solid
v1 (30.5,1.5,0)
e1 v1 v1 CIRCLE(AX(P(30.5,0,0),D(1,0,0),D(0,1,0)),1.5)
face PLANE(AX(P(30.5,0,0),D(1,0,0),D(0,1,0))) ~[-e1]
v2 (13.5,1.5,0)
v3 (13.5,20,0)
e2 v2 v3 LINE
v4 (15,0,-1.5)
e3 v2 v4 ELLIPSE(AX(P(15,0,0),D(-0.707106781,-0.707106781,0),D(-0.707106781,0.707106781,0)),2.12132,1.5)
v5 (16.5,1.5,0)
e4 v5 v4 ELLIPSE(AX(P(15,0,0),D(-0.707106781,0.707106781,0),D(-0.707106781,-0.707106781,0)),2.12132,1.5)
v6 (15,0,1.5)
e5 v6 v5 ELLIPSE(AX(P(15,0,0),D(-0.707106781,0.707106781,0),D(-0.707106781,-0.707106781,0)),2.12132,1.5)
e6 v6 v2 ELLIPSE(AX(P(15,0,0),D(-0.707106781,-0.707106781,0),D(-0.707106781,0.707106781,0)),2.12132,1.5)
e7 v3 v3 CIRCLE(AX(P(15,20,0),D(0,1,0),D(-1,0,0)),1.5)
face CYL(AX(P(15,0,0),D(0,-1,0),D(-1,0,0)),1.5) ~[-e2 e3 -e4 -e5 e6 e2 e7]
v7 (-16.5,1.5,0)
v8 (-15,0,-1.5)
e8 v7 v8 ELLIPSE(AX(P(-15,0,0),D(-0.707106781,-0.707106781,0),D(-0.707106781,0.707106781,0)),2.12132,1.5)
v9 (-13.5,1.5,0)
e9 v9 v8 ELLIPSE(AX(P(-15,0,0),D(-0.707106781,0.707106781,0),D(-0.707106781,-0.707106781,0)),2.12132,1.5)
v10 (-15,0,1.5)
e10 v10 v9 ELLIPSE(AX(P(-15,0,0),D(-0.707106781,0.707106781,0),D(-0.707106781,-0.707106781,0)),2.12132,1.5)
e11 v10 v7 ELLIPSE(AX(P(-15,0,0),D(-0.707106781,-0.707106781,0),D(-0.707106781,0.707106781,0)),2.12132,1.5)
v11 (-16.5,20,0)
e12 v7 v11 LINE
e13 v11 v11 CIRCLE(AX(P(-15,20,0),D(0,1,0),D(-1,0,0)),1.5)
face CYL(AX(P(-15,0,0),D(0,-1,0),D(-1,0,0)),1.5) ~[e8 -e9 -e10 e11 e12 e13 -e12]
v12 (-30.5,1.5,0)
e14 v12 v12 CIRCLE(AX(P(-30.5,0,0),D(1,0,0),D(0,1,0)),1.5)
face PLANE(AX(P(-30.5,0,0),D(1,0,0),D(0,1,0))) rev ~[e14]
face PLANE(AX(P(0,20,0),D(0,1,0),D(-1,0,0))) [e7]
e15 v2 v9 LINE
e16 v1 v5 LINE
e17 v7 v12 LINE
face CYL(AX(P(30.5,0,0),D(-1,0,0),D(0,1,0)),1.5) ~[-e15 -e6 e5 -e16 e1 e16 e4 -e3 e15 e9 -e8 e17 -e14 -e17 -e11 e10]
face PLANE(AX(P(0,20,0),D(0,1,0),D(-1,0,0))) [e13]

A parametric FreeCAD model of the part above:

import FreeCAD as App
import Part
import Sketcher
Q = App.Units.Quantity


def add_polygon(sketch, points):
    """Adds a closed chain of lines whose ends are joined by coincident constraints."""
    first, n = sketch.GeometryCount, len(points)
    for a, b in zip(points, points[1:] + points[:1]):
        sketch.addGeometry(Part.LineSegment(App.Vector(*a, 0), App.Vector(*b, 0)), False)
    for i in range(n):
        sketch.addConstraint(Sketcher.Constraint("Coincident", first + i, 2, first + (i + 1) % n, 1))

doc = App.newDocument("Part")
body = doc.addObject("PartDesign::Body", "Body")

# Sketch on XY plane
sketch1 = body.newObject("Sketcher::SketchObject", "Sketch")
sketch1.AttachmentSupport = (doc.getObject("XY_Plane"), [""])
sketch1.MapMode = "FlatFace"
add_polygon(sketch1, [(-30.5, 1.5), (-30.5, 0), (30.5, 0), (30.5, 1.5)])  # lines 0-3
sketch1.addConstraint([
    Sketcher.Constraint("Vertical", 0),
    Sketcher.Constraint("Horizontal", 1),
    Sketcher.Constraint("Vertical", 2),
    Sketcher.Constraint("Horizontal", 3),
    Sketcher.Constraint("Symmetric", 0, 2, 1, 2, -1, 1),
    Sketcher.Constraint("DistanceX", 1, 1, 1, 2, Q("61 mm")),
    Sketcher.Constraint("DistanceY", 0, 2, 0, 1, Q("1.5 mm")),
])
revolution = body.newObject("PartDesign::Revolution", "Revolution")
revolution.Profile = sketch1
revolution.ReferenceAxis = (sketch1, ["H_Axis"])
revolution.Angle = 360

# Sketch on XZ plane
sketch2 = body.newObject("Sketcher::SketchObject", "Sketch001")
sketch2.AttachmentSupport = (doc.getObject("XZ_Plane"), [""])
sketch2.MapMode = "FlatFace"
sketch2.addGeometry([
    Part.Circle(App.Vector(-15, 0, 0), App.Vector(0, 0, 1), 1.5),
    Part.Circle(App.Vector(15, 0, 0), App.Vector(0, 0, 1), 1.5),
], False)
sketch2.addConstraint([
    Sketcher.Constraint("Equal", 0, 1),
    Sketcher.Constraint("Symmetric", 0, 3, 1, 3, -1, 1),
    Sketcher.Constraint("PointOnObject", 0, 3, -1),
    Sketcher.Constraint("Diameter", 0, Q("3 mm")),
    Sketcher.Constraint("DistanceX", 0, 3, -1, 1, Q("15 mm")),
])
pad1 = body.newObject("PartDesign::Pad", "Pad")
pad1.Profile = sketch2
pad1.Length = 20
pad1.Reversed = True

doc.recompute()
